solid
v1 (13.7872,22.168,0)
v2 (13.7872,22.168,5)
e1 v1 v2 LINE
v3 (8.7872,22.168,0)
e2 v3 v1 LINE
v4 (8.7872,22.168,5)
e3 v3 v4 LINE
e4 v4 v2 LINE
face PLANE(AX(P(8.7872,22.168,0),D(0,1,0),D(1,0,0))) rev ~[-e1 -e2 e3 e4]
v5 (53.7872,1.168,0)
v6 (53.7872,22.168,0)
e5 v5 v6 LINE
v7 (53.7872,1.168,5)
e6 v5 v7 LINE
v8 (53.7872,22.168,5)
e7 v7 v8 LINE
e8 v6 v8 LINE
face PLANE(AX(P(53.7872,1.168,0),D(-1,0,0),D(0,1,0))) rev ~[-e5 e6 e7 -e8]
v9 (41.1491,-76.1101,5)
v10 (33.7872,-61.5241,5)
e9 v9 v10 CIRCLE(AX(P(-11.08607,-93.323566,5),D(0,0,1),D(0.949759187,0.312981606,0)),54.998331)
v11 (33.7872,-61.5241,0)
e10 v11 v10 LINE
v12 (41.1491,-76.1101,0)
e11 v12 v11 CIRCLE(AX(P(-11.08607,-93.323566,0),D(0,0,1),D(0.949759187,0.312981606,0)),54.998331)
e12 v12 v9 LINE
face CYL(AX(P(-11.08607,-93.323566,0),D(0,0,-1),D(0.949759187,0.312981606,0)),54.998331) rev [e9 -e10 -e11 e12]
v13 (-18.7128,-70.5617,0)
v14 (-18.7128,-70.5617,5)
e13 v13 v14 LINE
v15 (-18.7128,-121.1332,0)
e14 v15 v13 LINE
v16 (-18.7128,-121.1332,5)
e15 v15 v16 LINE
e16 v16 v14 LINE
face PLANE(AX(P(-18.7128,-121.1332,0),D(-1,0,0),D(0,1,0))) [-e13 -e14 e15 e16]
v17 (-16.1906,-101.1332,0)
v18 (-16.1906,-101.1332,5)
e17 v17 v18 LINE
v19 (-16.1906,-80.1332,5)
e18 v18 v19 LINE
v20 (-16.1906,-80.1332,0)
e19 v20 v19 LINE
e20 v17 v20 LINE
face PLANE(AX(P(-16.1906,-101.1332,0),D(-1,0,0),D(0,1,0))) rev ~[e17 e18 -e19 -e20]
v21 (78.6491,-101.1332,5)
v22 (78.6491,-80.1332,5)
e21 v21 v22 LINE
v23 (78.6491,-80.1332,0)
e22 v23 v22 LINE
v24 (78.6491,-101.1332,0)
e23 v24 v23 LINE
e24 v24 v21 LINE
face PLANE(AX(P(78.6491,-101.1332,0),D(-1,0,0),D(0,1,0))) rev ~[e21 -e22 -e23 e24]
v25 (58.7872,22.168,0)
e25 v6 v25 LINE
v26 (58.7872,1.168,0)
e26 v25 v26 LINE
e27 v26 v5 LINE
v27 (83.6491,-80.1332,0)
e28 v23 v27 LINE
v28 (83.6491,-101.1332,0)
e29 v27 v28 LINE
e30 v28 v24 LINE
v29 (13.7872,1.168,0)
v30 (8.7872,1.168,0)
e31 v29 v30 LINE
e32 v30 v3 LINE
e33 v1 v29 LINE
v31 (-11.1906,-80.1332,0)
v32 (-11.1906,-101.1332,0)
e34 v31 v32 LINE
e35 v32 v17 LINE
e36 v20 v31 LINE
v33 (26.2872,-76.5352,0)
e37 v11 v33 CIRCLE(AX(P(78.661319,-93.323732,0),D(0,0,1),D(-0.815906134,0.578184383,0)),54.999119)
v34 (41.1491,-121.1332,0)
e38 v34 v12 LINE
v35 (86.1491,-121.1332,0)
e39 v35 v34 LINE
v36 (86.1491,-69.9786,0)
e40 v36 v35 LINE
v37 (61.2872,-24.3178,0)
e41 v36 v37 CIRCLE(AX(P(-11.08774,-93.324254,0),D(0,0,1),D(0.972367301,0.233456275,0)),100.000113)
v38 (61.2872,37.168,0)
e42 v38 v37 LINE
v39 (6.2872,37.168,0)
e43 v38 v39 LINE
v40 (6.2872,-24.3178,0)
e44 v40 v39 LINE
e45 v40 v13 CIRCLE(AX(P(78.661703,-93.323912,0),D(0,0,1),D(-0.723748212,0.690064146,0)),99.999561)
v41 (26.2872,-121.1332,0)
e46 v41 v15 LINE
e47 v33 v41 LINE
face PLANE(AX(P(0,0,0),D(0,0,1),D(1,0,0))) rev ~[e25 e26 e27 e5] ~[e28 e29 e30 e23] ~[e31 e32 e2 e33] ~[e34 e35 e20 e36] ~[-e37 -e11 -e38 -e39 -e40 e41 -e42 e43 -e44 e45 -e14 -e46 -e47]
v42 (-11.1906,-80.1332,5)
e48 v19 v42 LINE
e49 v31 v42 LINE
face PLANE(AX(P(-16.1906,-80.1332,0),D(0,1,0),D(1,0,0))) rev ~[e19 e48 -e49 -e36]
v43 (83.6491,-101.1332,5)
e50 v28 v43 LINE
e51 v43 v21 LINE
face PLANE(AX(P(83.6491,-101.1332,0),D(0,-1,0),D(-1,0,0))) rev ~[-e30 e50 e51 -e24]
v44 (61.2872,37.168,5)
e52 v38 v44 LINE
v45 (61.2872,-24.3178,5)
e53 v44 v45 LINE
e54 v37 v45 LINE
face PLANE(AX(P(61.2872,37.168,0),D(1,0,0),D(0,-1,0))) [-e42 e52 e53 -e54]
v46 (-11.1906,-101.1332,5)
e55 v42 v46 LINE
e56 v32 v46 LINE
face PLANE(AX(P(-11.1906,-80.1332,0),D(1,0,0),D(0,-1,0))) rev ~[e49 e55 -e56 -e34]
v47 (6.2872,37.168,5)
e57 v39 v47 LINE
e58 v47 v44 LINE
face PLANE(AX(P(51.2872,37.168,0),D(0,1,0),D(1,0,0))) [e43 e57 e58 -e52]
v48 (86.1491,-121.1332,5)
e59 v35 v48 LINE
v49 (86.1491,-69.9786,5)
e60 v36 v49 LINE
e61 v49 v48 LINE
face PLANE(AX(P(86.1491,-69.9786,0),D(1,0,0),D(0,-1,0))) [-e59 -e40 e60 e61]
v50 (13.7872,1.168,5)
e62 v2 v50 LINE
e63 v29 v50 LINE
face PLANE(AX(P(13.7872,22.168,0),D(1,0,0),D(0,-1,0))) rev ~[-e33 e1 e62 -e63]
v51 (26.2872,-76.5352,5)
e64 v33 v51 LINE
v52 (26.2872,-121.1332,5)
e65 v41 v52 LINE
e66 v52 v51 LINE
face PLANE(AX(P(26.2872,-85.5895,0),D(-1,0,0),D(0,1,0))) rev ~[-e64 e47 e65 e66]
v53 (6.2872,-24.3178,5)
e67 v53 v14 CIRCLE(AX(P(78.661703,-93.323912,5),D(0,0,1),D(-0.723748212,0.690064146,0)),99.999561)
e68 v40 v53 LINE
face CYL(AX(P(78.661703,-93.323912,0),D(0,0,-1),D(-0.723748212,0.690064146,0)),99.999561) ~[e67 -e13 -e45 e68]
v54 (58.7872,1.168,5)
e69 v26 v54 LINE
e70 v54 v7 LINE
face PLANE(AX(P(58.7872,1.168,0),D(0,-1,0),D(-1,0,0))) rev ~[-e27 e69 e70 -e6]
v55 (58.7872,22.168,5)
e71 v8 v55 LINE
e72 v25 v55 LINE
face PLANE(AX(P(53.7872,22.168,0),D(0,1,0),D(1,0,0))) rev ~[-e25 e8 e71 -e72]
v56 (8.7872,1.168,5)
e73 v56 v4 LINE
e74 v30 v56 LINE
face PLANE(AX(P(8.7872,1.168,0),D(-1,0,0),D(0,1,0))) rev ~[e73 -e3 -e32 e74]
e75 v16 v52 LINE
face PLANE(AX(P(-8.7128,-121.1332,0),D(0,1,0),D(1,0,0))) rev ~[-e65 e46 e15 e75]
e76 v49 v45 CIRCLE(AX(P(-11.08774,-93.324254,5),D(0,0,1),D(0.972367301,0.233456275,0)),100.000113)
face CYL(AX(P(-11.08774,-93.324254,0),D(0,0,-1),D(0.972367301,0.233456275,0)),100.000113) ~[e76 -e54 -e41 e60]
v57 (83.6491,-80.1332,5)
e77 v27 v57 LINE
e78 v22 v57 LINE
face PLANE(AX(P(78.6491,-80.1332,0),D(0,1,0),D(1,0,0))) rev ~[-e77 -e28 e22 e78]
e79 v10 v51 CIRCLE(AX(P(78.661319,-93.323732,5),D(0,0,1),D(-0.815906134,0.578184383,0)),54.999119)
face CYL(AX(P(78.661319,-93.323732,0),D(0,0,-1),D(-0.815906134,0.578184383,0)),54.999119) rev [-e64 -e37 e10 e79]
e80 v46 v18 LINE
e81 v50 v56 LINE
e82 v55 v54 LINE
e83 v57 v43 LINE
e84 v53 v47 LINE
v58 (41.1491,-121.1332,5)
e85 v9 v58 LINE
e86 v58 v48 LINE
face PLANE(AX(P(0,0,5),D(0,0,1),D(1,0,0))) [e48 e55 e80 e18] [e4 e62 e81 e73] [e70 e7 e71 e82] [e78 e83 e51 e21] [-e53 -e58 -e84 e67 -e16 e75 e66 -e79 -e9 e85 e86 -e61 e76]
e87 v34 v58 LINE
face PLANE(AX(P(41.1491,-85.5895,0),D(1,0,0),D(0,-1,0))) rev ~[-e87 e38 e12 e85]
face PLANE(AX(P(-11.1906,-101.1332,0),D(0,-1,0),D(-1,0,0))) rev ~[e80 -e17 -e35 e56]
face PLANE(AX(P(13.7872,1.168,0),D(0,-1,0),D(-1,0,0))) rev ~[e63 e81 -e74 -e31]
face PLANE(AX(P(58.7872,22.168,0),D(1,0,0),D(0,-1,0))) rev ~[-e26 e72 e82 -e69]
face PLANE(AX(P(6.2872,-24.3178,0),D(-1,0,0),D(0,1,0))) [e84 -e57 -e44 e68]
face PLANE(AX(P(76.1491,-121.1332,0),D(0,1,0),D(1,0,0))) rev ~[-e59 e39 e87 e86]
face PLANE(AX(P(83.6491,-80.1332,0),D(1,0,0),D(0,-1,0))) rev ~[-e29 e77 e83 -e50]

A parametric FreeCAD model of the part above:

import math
import FreeCAD as App
import Part
import Sketcher
from FreeCAD import Vector

doc = App.newDocument("Part")
params = doc.addObject("Spreadsheet::Sheet", "Params")
for row, (alias, value) in enumerate([
    ("sketch1_width", "5 mm"),
    ("sketch1_height", "21 mm"),
    ("sketch1_radius", "100 mm"),
    ("sketch1_radius2", "55 mm"),
    ("sketch1_width2", "45 mm"),
    ("pad1_length", "5 mm"),
], start=1):
    params.set(f"A{row}", alias)
    params.set(f"B{row}", "=" + value)
    params.setAlias(f"B{row}", alias)

body = doc.addObject("PartDesign::Body", "Body")

# Sketch on XY plane
sketch1 = body.newObject("Sketcher::SketchObject", "Sketch")
sketch1.AttachmentSupport = (doc.getObject("XY_Plane"), [""])
sketch1.MapMode = "FlatFace"
sketch1.addGeometry([
    Part.LineSegment(Vector(61.2872, 37.168, 0), Vector(6.2872, 37.168, 0)),  # 0
    Part.LineSegment(Vector(6.2872, 37.168, 0), Vector(6.2872, -24.3178, 0)),  # 1
    Part.ArcOfCircle(Part.Circle(Vector(78.6621, -93.3242, 0), Vector(0, 0, 1), 100.000047), math.radians(136.36485), math.radians(166.842716)),  # 2
    Part.LineSegment(Vector(-18.7128, -70.5617, 0), Vector(-18.7128, -121.1332, 0)),  # 3
    Part.LineSegment(Vector(-18.7128, -121.1332, 0), Vector(26.2872, -121.1332, 0)),  # 4
    Part.LineSegment(Vector(26.2872, -121.1332, 0), Vector(26.2872, -76.5352, 0)),  # 5
    Part.ArcOfCircle(Part.Circle(Vector(78.6621, -93.3242, 0), Vector(0, 0, 1), 55.000027), math.radians(144.67713), math.radians(162.226523)),  # 6
    Part.ArcOfCircle(Part.Circle(Vector(-11.08607, -93.323566, 0), Vector(0, 0, 1), 54.998331), math.radians(18.239008), math.radians(35.323313)),  # 7
    Part.LineSegment(Vector(41.1491, -76.1101, 0), Vector(41.1491, -121.1332, 0)),  # 8
    Part.LineSegment(Vector(41.1491, -121.1332, 0), Vector(86.1491, -121.1332, 0)),  # 9
    Part.LineSegment(Vector(86.1491, -121.1332, 0), Vector(86.1491, -69.9786, 0)),  # 10
    Part.ArcOfCircle(Part.Circle(Vector(-11.0876, -93.3242, 0), Vector(0, 0, 1), 99.999964), math.radians(13.500632), math.radians(43.635189)),  # 11
    Part.LineSegment(Vector(61.2872, -24.3178, 0), Vector(61.2872, 37.168, 0)),  # 12
    Part.LineSegment(Vector(78.6491, -101.1332, 0), Vector(78.6491, -80.1332, 0)),  # 13
    Part.LineSegment(Vector(78.6491, -80.1332, 0), Vector(83.6491, -80.1332, 0)),  # 14
    Part.LineSegment(Vector(83.6491, -80.1332, 0), Vector(83.6491, -101.1332, 0)),  # 15
    Part.LineSegment(Vector(83.6491, -101.1332, 0), Vector(78.6491, -101.1332, 0)),  # 16
    Part.LineSegment(Vector(53.7872, 1.168, 0), Vector(53.7872, 22.168, 0)),  # 17
    Part.LineSegment(Vector(53.7872, 22.168, 0), Vector(58.7872, 22.168, 0)),  # 18
    Part.LineSegment(Vector(58.7872, 22.168, 0), Vector(58.7872, 1.168, 0)),  # 19
    Part.LineSegment(Vector(58.7872, 1.168, 0), Vector(53.7872, 1.168, 0)),  # 20
    Part.LineSegment(Vector(-11.1906, -80.1332, 0), Vector(-11.1906, -101.1332, 0)),  # 21
    Part.LineSegment(Vector(-11.1906, -101.1332, 0), Vector(-16.1906, -101.1332, 0)),  # 22
    Part.LineSegment(Vector(-16.1906, -101.1332, 0), Vector(-16.1906, -80.1332, 0)),  # 23
    Part.LineSegment(Vector(-16.1906, -80.1332, 0), Vector(-11.1906, -80.1332, 0)),  # 24
    Part.LineSegment(Vector(8.7872, 1.168, 0), Vector(8.7872, 22.168, 0)),  # 25
    Part.LineSegment(Vector(8.7872, 22.168, 0), Vector(13.7872, 22.168, 0)),  # 26
    Part.LineSegment(Vector(13.7872, 22.168, 0), Vector(13.7872, 1.168, 0)),  # 27
    Part.LineSegment(Vector(13.7872, 1.168, 0), Vector(8.7872, 1.168, 0)),  # 28
], False)
sketch1.addConstraint([
    Sketcher.Constraint("Coincident", 0, 2, 1, 1),
    Sketcher.Constraint("Coincident", 1, 2, 2, 1),
    Sketcher.Constraint("Coincident", 2, 2, 3, 1),
    Sketcher.Constraint("Coincident", 3, 2, 4, 1),
    Sketcher.Constraint("Coincident", 4, 2, 5, 1),
    Sketcher.Constraint("Coincident", 5, 2, 6, 2),
    Sketcher.Constraint("Coincident", 6, 1, 7, 2),
    Sketcher.Constraint("Coincident", 7, 1, 8, 1),
    Sketcher.Constraint("Coincident", 8, 2, 9, 1),
    Sketcher.Constraint("Coincident", 9, 2, 10, 1),
    Sketcher.Constraint("Coincident", 10, 2, 11, 1),
    Sketcher.Constraint("Coincident", 11, 2, 12, 1),
    Sketcher.Constraint("Coincident", 12, 2, 0, 1),
    Sketcher.Constraint("Coincident", 13, 2, 14, 1),
    Sketcher.Constraint("Coincident", 14, 2, 15, 1),
    Sketcher.Constraint("Coincident", 15, 2, 16, 1),
    Sketcher.Constraint("Coincident", 16, 2, 13, 1),
    Sketcher.Constraint("Coincident", 17, 2, 18, 1),
    Sketcher.Constraint("Coincident", 18, 2, 19, 1),
    Sketcher.Constraint("Coincident", 19, 2, 20, 1),
    Sketcher.Constraint("Coincident", 20, 2, 17, 1),
    Sketcher.Constraint("Coincident", 21, 2, 22, 1),
    Sketcher.Constraint("Coincident", 22, 2, 23, 1),
    Sketcher.Constraint("Coincident", 23, 2, 24, 1),
    Sketcher.Constraint("Coincident", 24, 2, 21, 1),
    Sketcher.Constraint("Coincident", 25, 2, 26, 1),
    Sketcher.Constraint("Coincident", 26, 2, 27, 1),
    Sketcher.Constraint("Coincident", 27, 2, 28, 1),
    Sketcher.Constraint("Coincident", 28, 2, 25, 1),
    Sketcher.Constraint("Horizontal", 0),
    Sketcher.Constraint("Vertical", 1),
    Sketcher.Constraint("Vertical", 3),
    Sketcher.Constraint("Horizontal", 4),
    Sketcher.Constraint("Vertical", 5),
    Sketcher.Constraint("Vertical", 8),
    Sketcher.Constraint("Horizontal", 9),
    Sketcher.Constraint("Vertical", 10),
    Sketcher.Constraint("Vertical", 12),
    Sketcher.Constraint("Vertical", 13),
    Sketcher.Constraint("Horizontal", 14),
    Sketcher.Constraint("Vertical", 15),
    Sketcher.Constraint("Horizontal", 16),
    Sketcher.Constraint("Vertical", 17),
    Sketcher.Constraint("Horizontal", 18),
    Sketcher.Constraint("Vertical", 19),
    Sketcher.Constraint("Horizontal", 20),
    Sketcher.Constraint("Vertical", 21),
    Sketcher.Constraint("Horizontal", 22),
    Sketcher.Constraint("Vertical", 23),
    Sketcher.Constraint("Horizontal", 24),
    Sketcher.Constraint("Vertical", 25),
    Sketcher.Constraint("Horizontal", 26),
    Sketcher.Constraint("Vertical", 27),
    Sketcher.Constraint("Horizontal", 28),
    Sketcher.Constraint("Coincident", 6, 3, 2, 3),
    Sketcher.Constraint("Equal", 2, 11),
    Sketcher.Constraint("Horizontal", 6, 3, 11, 3),
    Sketcher.Constraint("Horizontal", 4, 2, 8, 2),
    Sketcher.Constraint("Horizontal", 1, 2, 11, 2),
    Sketcher.Constraint("Horizontal", 16, 2, 21, 2),
    Sketcher.Constraint("Horizontal", 14, 2, 23, 2),
    Sketcher.Constraint("Horizontal", 18, 2, 25, 2),
    Sketcher.Constraint("Horizontal", 20, 2, 27, 2),
    Sketcher.Constraint("Equal", 4, 9),
    Sketcher.Constraint("Equal", 16, 18),
    Sketcher.Constraint("Equal", 20, 22),
    Sketcher.Constraint("Equal", 24, 26),
    Sketcher.Constraint("Equal", 15, 17),
    Sketcher.Constraint("DistanceX", 14, 1, 14, 2, 5.0),
    Sketcher.Constraint("DistanceY", 13, 1, 13, 2, 21.0),
    Sketcher.Constraint("Radius", 2, 100.0),
    Sketcher.Constraint("Radius", 6, 55.0),
    Sketcher.Constraint("DistanceX", 5, 2, 11, 2, 35.0),
    Sketcher.Constraint("DistanceY", 9, 2, 15, 2, 20.0),
    Sketcher.Constraint("DistanceY", 17, 2, 12, 2, 15.0),
    Sketcher.Constraint("DistanceX", 6, 1, 17, 2, 20.0),
    Sketcher.Constraint("DistanceX", 25, 2, 18, 2, 50.0),
    Sketcher.Constraint("DistanceX", 14, 2, 10, 2, 2.5),
    Sketcher.Constraint("DistanceX", 18, 2, 12, 2, 2.5),
    Sketcher.Constraint("DistanceX", 0, 2, 25, 2, 2.5),
    Sketcher.Constraint("DistanceX", 4, 1, 4, 2, 45.0),
    Sketcher.Constraint("Radius", 7, 54.9983),
    Sketcher.Constraint("DistanceY", 11, 3, 6, 1, 31.8),
    Sketcher.Constraint("DistanceY", 5, 1, 5, 2, 44.598),
    Sketcher.Constraint("DistanceY", 8, 2, 8, 1, 45.023),
    Sketcher.Constraint("DistanceY", 7, 1, -1, 1, 76.11),
    Sketcher.Constraint("DistanceY", 1, 2, 1, 1, 61.4858),
    Sketcher.Constraint("DistanceY", 10, 1, 10, 2, 51.1546),
    Sketcher.Constraint("DistanceX", -1, 1, 2, 3, 78.662),
    Sketcher.Constraint("DistanceX", 21, 2, 11, 3, 0.103),
])
sketch1.setExpression("Constraints[68]", "Params.sketch1_width")
sketch1.setExpression("Constraints[69]", "Params.sketch1_height")
sketch1.setExpression("Constraints[70]", "Params.sketch1_radius")
sketch1.setExpression("Constraints[71]", "Params.sketch1_radius2")
sketch1.setExpression("Constraints[80]", "Params.sketch1_width2")
pad1 = body.newObject("PartDesign::Pad", "Pad")
pad1.Profile = sketch1
pad1.setExpression("Length", "Params.pad1_length")

doc.recompute()
